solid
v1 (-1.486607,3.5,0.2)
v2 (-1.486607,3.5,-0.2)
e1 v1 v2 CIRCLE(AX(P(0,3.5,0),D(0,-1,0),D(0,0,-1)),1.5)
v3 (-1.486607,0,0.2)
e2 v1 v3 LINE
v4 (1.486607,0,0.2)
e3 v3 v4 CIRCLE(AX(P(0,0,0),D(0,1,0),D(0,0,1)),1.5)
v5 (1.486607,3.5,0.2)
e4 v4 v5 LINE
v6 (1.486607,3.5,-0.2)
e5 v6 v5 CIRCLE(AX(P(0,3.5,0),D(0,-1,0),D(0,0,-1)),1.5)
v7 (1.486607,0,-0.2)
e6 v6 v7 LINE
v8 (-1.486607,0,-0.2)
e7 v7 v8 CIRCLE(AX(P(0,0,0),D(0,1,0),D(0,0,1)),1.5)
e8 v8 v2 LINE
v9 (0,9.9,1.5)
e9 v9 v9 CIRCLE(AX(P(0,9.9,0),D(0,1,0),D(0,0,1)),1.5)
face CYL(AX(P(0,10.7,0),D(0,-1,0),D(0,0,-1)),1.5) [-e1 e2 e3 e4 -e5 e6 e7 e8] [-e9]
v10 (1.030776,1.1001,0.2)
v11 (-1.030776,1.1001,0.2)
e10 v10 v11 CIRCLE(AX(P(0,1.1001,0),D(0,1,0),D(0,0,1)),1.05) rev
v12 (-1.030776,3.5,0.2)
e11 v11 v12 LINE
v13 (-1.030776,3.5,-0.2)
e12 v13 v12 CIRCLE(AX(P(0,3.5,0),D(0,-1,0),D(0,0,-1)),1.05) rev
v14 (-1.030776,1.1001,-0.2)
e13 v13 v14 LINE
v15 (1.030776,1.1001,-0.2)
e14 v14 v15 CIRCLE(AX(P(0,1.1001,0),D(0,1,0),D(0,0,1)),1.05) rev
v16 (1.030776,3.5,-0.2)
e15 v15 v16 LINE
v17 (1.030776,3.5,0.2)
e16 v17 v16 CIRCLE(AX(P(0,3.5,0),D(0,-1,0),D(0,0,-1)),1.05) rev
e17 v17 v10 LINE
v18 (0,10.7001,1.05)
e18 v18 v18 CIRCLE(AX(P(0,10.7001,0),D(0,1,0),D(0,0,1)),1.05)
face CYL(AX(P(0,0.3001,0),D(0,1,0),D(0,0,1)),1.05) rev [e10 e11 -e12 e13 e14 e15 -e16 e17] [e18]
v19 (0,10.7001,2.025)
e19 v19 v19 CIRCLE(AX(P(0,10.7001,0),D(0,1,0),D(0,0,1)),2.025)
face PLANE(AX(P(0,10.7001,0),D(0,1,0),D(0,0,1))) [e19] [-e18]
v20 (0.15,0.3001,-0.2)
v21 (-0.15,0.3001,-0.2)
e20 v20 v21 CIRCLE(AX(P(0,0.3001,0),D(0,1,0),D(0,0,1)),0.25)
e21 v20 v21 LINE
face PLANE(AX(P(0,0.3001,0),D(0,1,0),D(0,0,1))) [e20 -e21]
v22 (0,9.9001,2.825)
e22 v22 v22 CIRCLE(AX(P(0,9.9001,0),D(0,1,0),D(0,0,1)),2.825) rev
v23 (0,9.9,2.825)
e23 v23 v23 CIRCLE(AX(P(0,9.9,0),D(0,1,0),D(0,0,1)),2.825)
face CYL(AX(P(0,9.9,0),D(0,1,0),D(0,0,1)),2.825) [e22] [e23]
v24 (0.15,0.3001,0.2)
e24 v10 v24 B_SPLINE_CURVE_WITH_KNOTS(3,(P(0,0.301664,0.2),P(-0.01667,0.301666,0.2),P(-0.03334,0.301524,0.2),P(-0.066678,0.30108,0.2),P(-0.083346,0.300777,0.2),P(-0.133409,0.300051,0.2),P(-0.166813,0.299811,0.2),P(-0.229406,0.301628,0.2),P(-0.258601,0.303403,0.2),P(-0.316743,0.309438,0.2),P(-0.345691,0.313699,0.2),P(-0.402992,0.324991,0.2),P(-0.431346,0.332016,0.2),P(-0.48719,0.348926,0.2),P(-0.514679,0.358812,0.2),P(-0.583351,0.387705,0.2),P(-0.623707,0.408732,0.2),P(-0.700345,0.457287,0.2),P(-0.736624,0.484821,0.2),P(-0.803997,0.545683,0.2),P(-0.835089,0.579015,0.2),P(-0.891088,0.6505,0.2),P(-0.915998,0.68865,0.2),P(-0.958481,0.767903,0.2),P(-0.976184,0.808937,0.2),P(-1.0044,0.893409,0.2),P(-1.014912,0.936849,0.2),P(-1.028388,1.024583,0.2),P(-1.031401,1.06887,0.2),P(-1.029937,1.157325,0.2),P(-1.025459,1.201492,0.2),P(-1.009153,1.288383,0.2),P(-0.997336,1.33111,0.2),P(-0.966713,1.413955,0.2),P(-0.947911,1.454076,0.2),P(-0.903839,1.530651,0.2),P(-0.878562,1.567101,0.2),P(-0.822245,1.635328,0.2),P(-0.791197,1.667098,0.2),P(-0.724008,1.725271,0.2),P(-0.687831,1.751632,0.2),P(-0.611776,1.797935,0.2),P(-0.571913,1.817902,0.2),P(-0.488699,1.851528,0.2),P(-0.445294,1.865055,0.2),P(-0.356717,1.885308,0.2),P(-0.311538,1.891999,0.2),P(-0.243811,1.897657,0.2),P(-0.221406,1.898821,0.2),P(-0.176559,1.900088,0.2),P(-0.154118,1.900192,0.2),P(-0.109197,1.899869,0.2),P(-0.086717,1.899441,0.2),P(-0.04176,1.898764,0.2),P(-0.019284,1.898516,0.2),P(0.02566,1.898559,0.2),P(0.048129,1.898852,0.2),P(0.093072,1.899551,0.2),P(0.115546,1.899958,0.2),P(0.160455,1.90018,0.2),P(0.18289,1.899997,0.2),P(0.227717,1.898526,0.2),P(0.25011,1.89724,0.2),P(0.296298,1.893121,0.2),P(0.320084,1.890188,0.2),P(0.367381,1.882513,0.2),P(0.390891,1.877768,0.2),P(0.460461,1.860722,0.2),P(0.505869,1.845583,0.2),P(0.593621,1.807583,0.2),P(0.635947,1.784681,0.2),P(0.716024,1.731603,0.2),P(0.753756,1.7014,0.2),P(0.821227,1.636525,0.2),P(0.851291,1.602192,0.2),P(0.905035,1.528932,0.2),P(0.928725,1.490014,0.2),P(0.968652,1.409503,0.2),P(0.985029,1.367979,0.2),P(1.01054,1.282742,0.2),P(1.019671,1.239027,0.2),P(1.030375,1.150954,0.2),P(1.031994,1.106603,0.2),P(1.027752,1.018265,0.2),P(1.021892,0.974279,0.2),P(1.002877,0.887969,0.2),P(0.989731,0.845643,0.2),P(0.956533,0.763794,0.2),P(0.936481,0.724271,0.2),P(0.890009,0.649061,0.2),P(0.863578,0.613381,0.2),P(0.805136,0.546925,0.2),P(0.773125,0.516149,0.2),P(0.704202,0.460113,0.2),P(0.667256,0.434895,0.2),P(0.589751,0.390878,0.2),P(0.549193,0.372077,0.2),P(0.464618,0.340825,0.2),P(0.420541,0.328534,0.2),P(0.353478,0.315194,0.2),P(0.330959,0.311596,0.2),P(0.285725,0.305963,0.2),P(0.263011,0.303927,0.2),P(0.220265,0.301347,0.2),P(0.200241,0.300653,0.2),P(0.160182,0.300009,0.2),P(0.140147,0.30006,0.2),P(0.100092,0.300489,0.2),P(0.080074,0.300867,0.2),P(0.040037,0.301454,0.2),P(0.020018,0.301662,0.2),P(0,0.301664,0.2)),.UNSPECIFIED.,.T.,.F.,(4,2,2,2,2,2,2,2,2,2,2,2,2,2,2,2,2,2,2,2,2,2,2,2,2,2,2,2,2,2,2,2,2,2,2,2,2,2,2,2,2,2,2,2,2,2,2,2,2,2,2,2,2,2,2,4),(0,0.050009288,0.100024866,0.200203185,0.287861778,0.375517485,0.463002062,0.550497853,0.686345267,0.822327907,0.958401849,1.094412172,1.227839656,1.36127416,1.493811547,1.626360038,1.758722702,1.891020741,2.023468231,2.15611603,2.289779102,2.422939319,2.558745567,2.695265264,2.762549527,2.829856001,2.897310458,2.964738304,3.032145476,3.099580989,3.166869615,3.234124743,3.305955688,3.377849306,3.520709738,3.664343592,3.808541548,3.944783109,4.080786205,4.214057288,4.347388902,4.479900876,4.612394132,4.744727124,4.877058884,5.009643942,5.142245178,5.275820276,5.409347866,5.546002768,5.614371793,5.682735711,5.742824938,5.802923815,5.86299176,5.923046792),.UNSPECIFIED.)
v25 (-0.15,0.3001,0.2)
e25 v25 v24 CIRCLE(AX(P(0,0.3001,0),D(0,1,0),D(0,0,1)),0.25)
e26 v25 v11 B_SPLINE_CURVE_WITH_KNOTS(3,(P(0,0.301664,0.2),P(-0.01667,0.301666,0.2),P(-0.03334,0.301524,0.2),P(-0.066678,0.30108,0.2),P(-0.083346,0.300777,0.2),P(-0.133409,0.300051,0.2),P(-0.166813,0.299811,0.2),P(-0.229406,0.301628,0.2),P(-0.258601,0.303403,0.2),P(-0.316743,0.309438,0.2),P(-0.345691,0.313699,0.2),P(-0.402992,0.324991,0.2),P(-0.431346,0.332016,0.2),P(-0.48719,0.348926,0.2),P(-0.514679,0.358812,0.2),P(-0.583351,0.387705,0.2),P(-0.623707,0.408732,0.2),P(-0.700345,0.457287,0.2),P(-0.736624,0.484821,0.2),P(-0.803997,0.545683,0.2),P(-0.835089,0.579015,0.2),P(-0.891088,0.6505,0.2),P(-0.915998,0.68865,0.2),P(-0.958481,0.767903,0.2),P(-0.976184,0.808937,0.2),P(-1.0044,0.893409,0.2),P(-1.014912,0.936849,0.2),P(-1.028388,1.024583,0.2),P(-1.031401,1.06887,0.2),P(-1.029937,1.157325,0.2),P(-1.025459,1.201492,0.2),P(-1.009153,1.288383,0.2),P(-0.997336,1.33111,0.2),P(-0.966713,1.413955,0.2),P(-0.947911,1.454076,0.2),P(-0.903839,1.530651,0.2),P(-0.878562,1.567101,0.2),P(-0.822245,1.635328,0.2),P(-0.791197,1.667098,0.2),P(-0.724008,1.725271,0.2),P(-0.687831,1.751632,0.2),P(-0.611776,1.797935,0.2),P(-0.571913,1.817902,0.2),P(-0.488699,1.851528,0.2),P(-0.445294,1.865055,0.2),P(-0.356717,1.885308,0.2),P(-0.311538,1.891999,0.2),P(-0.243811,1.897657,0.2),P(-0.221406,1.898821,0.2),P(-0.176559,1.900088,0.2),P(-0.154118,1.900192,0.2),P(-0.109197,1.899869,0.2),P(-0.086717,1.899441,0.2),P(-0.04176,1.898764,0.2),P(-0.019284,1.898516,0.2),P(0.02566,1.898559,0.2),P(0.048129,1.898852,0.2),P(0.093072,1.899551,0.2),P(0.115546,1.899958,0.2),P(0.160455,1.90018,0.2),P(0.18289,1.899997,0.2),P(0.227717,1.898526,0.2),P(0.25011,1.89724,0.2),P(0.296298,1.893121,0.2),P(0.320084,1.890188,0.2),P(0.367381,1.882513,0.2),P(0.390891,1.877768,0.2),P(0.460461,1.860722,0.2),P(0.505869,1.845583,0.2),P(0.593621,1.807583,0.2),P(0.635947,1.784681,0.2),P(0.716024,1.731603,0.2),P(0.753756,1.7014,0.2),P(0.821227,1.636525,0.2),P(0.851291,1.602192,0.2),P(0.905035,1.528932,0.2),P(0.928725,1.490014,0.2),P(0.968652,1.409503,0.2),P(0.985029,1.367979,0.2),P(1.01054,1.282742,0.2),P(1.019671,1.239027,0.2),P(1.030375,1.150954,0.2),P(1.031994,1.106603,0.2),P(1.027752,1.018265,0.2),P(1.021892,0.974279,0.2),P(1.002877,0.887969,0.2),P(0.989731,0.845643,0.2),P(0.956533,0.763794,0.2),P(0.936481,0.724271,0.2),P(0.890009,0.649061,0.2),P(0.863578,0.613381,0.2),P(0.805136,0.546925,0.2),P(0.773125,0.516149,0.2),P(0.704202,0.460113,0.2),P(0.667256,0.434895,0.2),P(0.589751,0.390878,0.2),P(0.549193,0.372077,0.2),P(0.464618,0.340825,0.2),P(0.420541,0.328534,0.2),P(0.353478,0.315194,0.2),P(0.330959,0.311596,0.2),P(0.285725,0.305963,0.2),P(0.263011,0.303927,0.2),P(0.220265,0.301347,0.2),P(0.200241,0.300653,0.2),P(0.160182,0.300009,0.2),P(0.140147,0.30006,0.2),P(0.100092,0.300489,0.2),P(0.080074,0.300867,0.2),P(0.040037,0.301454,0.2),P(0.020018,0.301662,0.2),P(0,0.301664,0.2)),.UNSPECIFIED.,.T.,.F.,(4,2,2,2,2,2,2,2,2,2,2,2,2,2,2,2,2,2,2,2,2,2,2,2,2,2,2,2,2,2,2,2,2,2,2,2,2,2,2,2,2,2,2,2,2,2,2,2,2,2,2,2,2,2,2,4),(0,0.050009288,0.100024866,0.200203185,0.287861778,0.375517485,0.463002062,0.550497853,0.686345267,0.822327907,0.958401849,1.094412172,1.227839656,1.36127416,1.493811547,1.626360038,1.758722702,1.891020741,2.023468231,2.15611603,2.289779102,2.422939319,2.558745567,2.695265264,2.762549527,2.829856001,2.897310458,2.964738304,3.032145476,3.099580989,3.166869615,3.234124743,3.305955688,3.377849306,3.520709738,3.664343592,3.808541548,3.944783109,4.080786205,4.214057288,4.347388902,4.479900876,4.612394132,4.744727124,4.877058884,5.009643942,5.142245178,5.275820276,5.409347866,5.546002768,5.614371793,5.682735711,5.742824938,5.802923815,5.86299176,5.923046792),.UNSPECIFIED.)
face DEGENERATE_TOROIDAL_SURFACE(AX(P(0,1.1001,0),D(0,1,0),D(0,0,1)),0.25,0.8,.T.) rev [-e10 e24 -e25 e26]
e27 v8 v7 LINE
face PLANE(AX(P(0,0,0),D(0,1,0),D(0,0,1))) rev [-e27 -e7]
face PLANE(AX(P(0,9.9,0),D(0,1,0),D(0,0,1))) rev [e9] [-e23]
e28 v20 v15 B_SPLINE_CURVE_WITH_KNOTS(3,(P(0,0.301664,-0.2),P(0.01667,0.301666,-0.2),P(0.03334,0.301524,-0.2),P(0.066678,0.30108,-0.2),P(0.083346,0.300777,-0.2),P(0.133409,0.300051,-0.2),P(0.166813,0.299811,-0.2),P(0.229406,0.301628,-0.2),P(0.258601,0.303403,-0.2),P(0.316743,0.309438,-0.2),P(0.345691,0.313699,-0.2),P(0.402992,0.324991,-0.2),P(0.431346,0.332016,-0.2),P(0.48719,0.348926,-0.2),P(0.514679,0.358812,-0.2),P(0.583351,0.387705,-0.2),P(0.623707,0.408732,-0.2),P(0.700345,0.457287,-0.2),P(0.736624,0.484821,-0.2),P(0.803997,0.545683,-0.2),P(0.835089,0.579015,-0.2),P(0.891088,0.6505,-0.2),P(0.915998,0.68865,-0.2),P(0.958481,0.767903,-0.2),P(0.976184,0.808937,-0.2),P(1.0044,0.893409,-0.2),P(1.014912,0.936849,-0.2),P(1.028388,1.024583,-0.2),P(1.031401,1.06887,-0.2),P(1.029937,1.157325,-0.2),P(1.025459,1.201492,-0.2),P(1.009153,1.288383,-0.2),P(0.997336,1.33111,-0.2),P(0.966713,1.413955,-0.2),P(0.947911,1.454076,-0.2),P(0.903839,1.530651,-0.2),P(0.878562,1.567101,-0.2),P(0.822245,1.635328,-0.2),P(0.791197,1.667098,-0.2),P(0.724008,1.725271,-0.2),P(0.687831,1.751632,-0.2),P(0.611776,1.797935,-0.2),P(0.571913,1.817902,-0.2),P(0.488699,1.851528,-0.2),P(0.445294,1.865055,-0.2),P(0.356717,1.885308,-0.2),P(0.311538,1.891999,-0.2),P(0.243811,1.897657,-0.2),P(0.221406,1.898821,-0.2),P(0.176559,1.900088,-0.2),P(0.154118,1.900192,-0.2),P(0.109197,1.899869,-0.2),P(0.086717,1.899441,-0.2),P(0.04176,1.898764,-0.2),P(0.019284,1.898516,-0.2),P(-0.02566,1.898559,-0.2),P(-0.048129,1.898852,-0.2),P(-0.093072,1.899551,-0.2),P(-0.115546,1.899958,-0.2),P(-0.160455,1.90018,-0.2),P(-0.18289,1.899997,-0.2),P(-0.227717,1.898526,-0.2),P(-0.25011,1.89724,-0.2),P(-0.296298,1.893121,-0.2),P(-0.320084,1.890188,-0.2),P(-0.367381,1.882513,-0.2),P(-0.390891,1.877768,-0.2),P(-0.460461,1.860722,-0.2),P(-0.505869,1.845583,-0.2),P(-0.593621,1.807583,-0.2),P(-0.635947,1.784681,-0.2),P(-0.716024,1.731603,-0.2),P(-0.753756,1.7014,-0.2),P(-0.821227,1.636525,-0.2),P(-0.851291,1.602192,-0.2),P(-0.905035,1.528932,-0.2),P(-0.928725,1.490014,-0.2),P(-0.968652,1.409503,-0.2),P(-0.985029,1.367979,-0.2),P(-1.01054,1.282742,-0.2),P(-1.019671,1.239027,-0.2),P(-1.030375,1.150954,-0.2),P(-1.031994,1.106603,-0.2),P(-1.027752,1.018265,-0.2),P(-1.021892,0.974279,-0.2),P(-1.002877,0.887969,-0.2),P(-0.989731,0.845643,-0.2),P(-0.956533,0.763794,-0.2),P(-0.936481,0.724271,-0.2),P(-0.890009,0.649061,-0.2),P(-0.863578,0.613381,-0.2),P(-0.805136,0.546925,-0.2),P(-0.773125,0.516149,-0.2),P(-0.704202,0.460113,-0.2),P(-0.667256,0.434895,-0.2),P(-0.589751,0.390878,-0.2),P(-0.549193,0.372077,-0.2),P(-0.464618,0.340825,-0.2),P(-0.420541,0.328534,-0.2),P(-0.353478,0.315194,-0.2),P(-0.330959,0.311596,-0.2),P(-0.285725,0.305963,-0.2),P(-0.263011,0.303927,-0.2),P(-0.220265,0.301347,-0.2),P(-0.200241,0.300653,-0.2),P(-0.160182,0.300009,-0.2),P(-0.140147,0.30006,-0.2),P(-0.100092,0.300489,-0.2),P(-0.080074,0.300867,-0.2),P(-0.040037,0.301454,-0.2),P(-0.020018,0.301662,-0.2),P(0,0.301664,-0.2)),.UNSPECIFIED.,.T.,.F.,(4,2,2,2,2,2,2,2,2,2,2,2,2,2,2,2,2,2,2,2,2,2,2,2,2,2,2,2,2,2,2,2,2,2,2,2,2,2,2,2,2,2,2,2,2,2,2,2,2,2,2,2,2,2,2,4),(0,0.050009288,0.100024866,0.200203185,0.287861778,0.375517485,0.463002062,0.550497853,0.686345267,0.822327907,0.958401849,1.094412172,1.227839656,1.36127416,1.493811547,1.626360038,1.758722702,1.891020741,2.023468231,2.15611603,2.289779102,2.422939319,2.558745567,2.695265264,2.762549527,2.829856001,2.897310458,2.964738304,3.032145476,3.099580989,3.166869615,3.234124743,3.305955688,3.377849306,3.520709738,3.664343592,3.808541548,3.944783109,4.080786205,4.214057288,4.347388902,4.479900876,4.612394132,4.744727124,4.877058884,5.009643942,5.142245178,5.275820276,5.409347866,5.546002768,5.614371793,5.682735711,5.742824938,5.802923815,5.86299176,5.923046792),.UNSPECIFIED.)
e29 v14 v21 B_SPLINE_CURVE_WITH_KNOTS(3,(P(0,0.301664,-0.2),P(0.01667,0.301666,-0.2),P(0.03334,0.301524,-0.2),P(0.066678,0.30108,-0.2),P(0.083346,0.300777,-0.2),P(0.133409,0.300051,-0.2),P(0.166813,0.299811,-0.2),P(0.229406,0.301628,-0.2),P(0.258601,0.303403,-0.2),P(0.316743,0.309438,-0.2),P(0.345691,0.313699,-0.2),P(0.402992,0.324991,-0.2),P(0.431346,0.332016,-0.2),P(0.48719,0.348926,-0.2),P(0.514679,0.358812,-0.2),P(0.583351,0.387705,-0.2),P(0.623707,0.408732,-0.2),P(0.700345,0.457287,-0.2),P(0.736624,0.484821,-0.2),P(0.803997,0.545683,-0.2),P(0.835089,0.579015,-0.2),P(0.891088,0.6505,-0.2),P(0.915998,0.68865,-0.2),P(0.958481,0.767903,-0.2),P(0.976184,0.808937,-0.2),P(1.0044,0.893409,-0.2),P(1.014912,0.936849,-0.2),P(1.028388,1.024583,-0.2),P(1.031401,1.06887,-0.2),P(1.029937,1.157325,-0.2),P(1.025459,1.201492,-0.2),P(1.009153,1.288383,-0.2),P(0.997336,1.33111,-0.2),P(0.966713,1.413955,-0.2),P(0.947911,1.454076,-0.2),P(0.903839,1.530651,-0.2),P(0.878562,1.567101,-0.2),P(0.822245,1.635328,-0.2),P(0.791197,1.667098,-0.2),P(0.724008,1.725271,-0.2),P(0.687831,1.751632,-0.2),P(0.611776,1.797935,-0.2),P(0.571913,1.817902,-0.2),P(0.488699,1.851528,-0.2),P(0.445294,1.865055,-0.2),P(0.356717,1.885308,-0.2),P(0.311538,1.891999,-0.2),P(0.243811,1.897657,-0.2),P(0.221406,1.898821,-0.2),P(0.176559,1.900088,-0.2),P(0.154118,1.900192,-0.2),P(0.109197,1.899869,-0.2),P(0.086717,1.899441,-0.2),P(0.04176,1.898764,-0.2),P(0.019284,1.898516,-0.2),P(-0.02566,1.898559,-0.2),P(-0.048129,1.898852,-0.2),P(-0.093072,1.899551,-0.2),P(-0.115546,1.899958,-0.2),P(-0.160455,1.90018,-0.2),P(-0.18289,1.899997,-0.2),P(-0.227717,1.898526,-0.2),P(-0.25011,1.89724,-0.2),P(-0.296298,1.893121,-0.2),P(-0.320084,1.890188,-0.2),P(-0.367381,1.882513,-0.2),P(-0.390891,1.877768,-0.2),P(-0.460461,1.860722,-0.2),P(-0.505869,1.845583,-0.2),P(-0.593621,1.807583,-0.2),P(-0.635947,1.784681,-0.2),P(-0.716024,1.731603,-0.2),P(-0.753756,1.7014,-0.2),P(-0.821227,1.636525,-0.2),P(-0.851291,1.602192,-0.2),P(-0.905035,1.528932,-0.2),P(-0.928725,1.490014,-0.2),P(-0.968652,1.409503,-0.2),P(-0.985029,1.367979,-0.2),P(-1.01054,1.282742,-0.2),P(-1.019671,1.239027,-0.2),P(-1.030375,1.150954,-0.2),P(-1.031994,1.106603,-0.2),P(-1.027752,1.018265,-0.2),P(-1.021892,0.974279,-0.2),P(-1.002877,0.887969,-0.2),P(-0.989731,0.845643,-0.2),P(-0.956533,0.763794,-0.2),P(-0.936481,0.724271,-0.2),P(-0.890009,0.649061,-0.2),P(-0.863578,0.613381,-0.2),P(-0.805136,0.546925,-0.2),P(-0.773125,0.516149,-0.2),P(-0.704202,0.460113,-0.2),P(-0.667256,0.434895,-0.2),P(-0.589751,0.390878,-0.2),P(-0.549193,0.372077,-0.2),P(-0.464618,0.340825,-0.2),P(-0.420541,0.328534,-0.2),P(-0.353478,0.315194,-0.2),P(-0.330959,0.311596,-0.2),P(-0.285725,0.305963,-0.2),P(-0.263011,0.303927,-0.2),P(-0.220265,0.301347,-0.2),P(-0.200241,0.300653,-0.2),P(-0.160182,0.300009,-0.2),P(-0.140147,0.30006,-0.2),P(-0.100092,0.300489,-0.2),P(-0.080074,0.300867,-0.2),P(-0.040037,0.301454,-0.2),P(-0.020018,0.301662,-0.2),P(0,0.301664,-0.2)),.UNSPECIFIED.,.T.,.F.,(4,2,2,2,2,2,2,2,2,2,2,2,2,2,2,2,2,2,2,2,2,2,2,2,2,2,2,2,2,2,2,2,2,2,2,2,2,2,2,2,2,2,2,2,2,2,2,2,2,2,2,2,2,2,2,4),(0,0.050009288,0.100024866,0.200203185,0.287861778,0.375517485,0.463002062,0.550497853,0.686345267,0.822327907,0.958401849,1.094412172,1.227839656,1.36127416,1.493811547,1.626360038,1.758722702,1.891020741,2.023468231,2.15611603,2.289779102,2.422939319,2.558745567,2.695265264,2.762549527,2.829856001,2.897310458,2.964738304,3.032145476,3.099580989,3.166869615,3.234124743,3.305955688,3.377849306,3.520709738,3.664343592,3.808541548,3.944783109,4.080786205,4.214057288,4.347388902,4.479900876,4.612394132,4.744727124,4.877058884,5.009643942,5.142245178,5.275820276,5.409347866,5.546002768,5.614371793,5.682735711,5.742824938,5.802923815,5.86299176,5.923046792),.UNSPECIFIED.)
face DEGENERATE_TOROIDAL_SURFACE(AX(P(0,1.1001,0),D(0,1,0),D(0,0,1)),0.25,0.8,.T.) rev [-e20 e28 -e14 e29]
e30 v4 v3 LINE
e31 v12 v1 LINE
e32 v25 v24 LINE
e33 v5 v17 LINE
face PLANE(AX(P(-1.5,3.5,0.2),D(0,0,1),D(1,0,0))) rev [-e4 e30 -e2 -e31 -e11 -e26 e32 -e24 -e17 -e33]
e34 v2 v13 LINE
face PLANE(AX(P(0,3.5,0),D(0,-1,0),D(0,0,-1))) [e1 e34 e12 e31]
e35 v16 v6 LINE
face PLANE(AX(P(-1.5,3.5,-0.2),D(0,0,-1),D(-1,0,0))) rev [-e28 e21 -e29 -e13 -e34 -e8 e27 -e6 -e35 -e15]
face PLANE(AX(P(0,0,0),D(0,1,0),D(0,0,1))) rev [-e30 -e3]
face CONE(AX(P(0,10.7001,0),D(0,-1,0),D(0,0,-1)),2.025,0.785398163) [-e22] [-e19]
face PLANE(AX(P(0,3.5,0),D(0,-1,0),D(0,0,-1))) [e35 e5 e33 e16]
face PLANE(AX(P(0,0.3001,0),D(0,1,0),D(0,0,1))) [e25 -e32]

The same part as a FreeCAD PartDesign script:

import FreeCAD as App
import Part
import Sketcher

V = App.Vector
Q = App.Units.Quantity


def edges_at(feature, points):
    """Names of the edges that pass closest to the given points."""
    edges = feature.Shape.Edges
    near = lambda p: min(range(len(edges)), key=lambda i: edges[i].distToShape(Part.Vertex(*p))[0])
    return sorted({f"Edge{near(p) + 1}" for p in points})

doc = App.newDocument("Part")
body = doc.addObject("PartDesign::Body", "Body")

# Sketch on XZ plane
sketch1 = body.newObject("Sketcher::SketchObject", "Sketch")
sketch1.AttachmentSupport = (doc.getObject("XZ_Plane"), [""])
sketch1.MapMode = "FlatFace"
sketch1.addGeometry(Part.Circle(V(0, 0, 0), V(0, 0, 1), 1.5), False)
sketch1.addConstraint([
    Sketcher.Constraint("Coincident", 0, 3, -1, 1),
    Sketcher.Constraint("Diameter", 0, Q("3 mm")),
])
pad1 = body.newObject("PartDesign::Pad", "Pad")
pad1.Profile = sketch1
pad1.Length = 10.7
pad1.Reversed = True

# Sketch on XZ plane
sketch2 = body.newObject("Sketcher::SketchObject", "Sketch001")
sketch2.AttachmentSupport = (doc.getObject("XZ_Plane"), [""])
sketch2.MapMode = "FlatFace"
sketch2.AttachmentOffset = App.Placement(V(0, 0, -10.7), App.Rotation())
sketch2.addGeometry(Part.Circle(V(0, 0, 0), V(0, 0, 1), 2.8), False)
sketch2.addConstraint([
    Sketcher.Constraint("Coincident", 0, 3, -1, 1),
    Sketcher.Constraint("Diameter", 0, Q("5.65 mm")),
])
pad2 = body.newObject("PartDesign::Pad", "Pad001")
pad2.Profile = sketch2
pad2.Type = "TwoLengths"
pad2.Length = 0.0001
pad2.Length2 = 0.8
pad2.Reversed = True
doc.recompute()

chamfer = body.newObject("PartDesign::Chamfer", "Chamfer")
chamfer.Base = (pad2, edges_at(pad2, [(0, 10.7, -2.825)]))
chamfer.Size = 0.8

# Sketch on XZ plane
sketch3 = body.newObject("Sketcher::SketchObject", "Sketch002")
sketch3.AttachmentSupport = (doc.getObject("XZ_Plane"), [""])
sketch3.MapMode = "FlatFace"
sketch3.AttachmentOffset = App.Placement(V(0, 0, -10.7001), App.Rotation())
sketch3.addGeometry(Part.Circle(V(0, 0, 0), V(0, 0, 1), 1.1), False)
sketch3.addConstraint([
    Sketcher.Constraint("Coincident", 0, 3, -1, 1),
    Sketcher.Constraint("Diameter", 0, Q("2.1 mm")),
])
pocket1 = body.newObject("PartDesign::Pocket", "Pocket")
pocket1.Profile = sketch3
pocket1.Length = 10.4
pocket1.Reversed = True
doc.recompute()

fillet = body.newObject("PartDesign::Fillet", "Fillet")
fillet.Base = (pocket1, edges_at(pocket1, [(0, 0.3, -1.05)]))
fillet.Radius = 0.8

# Sketch on XZ plane
sketch4 = body.newObject("Sketcher::SketchObject", "Sketch003")
sketch4.AttachmentSupport = (doc.getObject("XZ_Plane"), [""])
sketch4.MapMode = "FlatFace"
sketch4.addGeometry([
    Part.LineSegment(V(1.5, -0.2, 0), V(1.5, 0.2, 0)),
    Part.LineSegment(V(1.5, 0.2, 0), V(-1.5, 0.2, 0)),
    Part.LineSegment(V(-1.5, 0.2, 0), V(-1.5, -0.2, 0)),
    Part.LineSegment(V(-1.5, -0.2, 0), V(1.5, -0.2, 0)),
], False)
sketch4.addConstraint([
    Sketcher.Constraint("Coincident", 0, 2, 1, 1),
    Sketcher.Constraint("Coincident", 1, 2, 2, 1),
    Sketcher.Constraint("Coincident", 2, 2, 3, 1),
    Sketcher.Constraint("Coincident", 3, 2, 0, 1),
    Sketcher.Constraint("Vertical", 0),
    Sketcher.Constraint("Horizontal", 1),
    Sketcher.Constraint("Vertical", 2),
    Sketcher.Constraint("Horizontal", 3),
    Sketcher.Constraint("Symmetric", 0, 2, 2, 2, -1, 1),
    Sketcher.Constraint("DistanceX", 1, 2, 1, 1, Q("3 mm")),
    Sketcher.Constraint("DistanceY", 0, 1, 0, 2, Q("0.4 mm")),
])
pocket2 = body.newObject("PartDesign::Pocket", "Pocket001")
pocket2.Profile = sketch4
pocket2.Length = 3.5

doc.recompute()
